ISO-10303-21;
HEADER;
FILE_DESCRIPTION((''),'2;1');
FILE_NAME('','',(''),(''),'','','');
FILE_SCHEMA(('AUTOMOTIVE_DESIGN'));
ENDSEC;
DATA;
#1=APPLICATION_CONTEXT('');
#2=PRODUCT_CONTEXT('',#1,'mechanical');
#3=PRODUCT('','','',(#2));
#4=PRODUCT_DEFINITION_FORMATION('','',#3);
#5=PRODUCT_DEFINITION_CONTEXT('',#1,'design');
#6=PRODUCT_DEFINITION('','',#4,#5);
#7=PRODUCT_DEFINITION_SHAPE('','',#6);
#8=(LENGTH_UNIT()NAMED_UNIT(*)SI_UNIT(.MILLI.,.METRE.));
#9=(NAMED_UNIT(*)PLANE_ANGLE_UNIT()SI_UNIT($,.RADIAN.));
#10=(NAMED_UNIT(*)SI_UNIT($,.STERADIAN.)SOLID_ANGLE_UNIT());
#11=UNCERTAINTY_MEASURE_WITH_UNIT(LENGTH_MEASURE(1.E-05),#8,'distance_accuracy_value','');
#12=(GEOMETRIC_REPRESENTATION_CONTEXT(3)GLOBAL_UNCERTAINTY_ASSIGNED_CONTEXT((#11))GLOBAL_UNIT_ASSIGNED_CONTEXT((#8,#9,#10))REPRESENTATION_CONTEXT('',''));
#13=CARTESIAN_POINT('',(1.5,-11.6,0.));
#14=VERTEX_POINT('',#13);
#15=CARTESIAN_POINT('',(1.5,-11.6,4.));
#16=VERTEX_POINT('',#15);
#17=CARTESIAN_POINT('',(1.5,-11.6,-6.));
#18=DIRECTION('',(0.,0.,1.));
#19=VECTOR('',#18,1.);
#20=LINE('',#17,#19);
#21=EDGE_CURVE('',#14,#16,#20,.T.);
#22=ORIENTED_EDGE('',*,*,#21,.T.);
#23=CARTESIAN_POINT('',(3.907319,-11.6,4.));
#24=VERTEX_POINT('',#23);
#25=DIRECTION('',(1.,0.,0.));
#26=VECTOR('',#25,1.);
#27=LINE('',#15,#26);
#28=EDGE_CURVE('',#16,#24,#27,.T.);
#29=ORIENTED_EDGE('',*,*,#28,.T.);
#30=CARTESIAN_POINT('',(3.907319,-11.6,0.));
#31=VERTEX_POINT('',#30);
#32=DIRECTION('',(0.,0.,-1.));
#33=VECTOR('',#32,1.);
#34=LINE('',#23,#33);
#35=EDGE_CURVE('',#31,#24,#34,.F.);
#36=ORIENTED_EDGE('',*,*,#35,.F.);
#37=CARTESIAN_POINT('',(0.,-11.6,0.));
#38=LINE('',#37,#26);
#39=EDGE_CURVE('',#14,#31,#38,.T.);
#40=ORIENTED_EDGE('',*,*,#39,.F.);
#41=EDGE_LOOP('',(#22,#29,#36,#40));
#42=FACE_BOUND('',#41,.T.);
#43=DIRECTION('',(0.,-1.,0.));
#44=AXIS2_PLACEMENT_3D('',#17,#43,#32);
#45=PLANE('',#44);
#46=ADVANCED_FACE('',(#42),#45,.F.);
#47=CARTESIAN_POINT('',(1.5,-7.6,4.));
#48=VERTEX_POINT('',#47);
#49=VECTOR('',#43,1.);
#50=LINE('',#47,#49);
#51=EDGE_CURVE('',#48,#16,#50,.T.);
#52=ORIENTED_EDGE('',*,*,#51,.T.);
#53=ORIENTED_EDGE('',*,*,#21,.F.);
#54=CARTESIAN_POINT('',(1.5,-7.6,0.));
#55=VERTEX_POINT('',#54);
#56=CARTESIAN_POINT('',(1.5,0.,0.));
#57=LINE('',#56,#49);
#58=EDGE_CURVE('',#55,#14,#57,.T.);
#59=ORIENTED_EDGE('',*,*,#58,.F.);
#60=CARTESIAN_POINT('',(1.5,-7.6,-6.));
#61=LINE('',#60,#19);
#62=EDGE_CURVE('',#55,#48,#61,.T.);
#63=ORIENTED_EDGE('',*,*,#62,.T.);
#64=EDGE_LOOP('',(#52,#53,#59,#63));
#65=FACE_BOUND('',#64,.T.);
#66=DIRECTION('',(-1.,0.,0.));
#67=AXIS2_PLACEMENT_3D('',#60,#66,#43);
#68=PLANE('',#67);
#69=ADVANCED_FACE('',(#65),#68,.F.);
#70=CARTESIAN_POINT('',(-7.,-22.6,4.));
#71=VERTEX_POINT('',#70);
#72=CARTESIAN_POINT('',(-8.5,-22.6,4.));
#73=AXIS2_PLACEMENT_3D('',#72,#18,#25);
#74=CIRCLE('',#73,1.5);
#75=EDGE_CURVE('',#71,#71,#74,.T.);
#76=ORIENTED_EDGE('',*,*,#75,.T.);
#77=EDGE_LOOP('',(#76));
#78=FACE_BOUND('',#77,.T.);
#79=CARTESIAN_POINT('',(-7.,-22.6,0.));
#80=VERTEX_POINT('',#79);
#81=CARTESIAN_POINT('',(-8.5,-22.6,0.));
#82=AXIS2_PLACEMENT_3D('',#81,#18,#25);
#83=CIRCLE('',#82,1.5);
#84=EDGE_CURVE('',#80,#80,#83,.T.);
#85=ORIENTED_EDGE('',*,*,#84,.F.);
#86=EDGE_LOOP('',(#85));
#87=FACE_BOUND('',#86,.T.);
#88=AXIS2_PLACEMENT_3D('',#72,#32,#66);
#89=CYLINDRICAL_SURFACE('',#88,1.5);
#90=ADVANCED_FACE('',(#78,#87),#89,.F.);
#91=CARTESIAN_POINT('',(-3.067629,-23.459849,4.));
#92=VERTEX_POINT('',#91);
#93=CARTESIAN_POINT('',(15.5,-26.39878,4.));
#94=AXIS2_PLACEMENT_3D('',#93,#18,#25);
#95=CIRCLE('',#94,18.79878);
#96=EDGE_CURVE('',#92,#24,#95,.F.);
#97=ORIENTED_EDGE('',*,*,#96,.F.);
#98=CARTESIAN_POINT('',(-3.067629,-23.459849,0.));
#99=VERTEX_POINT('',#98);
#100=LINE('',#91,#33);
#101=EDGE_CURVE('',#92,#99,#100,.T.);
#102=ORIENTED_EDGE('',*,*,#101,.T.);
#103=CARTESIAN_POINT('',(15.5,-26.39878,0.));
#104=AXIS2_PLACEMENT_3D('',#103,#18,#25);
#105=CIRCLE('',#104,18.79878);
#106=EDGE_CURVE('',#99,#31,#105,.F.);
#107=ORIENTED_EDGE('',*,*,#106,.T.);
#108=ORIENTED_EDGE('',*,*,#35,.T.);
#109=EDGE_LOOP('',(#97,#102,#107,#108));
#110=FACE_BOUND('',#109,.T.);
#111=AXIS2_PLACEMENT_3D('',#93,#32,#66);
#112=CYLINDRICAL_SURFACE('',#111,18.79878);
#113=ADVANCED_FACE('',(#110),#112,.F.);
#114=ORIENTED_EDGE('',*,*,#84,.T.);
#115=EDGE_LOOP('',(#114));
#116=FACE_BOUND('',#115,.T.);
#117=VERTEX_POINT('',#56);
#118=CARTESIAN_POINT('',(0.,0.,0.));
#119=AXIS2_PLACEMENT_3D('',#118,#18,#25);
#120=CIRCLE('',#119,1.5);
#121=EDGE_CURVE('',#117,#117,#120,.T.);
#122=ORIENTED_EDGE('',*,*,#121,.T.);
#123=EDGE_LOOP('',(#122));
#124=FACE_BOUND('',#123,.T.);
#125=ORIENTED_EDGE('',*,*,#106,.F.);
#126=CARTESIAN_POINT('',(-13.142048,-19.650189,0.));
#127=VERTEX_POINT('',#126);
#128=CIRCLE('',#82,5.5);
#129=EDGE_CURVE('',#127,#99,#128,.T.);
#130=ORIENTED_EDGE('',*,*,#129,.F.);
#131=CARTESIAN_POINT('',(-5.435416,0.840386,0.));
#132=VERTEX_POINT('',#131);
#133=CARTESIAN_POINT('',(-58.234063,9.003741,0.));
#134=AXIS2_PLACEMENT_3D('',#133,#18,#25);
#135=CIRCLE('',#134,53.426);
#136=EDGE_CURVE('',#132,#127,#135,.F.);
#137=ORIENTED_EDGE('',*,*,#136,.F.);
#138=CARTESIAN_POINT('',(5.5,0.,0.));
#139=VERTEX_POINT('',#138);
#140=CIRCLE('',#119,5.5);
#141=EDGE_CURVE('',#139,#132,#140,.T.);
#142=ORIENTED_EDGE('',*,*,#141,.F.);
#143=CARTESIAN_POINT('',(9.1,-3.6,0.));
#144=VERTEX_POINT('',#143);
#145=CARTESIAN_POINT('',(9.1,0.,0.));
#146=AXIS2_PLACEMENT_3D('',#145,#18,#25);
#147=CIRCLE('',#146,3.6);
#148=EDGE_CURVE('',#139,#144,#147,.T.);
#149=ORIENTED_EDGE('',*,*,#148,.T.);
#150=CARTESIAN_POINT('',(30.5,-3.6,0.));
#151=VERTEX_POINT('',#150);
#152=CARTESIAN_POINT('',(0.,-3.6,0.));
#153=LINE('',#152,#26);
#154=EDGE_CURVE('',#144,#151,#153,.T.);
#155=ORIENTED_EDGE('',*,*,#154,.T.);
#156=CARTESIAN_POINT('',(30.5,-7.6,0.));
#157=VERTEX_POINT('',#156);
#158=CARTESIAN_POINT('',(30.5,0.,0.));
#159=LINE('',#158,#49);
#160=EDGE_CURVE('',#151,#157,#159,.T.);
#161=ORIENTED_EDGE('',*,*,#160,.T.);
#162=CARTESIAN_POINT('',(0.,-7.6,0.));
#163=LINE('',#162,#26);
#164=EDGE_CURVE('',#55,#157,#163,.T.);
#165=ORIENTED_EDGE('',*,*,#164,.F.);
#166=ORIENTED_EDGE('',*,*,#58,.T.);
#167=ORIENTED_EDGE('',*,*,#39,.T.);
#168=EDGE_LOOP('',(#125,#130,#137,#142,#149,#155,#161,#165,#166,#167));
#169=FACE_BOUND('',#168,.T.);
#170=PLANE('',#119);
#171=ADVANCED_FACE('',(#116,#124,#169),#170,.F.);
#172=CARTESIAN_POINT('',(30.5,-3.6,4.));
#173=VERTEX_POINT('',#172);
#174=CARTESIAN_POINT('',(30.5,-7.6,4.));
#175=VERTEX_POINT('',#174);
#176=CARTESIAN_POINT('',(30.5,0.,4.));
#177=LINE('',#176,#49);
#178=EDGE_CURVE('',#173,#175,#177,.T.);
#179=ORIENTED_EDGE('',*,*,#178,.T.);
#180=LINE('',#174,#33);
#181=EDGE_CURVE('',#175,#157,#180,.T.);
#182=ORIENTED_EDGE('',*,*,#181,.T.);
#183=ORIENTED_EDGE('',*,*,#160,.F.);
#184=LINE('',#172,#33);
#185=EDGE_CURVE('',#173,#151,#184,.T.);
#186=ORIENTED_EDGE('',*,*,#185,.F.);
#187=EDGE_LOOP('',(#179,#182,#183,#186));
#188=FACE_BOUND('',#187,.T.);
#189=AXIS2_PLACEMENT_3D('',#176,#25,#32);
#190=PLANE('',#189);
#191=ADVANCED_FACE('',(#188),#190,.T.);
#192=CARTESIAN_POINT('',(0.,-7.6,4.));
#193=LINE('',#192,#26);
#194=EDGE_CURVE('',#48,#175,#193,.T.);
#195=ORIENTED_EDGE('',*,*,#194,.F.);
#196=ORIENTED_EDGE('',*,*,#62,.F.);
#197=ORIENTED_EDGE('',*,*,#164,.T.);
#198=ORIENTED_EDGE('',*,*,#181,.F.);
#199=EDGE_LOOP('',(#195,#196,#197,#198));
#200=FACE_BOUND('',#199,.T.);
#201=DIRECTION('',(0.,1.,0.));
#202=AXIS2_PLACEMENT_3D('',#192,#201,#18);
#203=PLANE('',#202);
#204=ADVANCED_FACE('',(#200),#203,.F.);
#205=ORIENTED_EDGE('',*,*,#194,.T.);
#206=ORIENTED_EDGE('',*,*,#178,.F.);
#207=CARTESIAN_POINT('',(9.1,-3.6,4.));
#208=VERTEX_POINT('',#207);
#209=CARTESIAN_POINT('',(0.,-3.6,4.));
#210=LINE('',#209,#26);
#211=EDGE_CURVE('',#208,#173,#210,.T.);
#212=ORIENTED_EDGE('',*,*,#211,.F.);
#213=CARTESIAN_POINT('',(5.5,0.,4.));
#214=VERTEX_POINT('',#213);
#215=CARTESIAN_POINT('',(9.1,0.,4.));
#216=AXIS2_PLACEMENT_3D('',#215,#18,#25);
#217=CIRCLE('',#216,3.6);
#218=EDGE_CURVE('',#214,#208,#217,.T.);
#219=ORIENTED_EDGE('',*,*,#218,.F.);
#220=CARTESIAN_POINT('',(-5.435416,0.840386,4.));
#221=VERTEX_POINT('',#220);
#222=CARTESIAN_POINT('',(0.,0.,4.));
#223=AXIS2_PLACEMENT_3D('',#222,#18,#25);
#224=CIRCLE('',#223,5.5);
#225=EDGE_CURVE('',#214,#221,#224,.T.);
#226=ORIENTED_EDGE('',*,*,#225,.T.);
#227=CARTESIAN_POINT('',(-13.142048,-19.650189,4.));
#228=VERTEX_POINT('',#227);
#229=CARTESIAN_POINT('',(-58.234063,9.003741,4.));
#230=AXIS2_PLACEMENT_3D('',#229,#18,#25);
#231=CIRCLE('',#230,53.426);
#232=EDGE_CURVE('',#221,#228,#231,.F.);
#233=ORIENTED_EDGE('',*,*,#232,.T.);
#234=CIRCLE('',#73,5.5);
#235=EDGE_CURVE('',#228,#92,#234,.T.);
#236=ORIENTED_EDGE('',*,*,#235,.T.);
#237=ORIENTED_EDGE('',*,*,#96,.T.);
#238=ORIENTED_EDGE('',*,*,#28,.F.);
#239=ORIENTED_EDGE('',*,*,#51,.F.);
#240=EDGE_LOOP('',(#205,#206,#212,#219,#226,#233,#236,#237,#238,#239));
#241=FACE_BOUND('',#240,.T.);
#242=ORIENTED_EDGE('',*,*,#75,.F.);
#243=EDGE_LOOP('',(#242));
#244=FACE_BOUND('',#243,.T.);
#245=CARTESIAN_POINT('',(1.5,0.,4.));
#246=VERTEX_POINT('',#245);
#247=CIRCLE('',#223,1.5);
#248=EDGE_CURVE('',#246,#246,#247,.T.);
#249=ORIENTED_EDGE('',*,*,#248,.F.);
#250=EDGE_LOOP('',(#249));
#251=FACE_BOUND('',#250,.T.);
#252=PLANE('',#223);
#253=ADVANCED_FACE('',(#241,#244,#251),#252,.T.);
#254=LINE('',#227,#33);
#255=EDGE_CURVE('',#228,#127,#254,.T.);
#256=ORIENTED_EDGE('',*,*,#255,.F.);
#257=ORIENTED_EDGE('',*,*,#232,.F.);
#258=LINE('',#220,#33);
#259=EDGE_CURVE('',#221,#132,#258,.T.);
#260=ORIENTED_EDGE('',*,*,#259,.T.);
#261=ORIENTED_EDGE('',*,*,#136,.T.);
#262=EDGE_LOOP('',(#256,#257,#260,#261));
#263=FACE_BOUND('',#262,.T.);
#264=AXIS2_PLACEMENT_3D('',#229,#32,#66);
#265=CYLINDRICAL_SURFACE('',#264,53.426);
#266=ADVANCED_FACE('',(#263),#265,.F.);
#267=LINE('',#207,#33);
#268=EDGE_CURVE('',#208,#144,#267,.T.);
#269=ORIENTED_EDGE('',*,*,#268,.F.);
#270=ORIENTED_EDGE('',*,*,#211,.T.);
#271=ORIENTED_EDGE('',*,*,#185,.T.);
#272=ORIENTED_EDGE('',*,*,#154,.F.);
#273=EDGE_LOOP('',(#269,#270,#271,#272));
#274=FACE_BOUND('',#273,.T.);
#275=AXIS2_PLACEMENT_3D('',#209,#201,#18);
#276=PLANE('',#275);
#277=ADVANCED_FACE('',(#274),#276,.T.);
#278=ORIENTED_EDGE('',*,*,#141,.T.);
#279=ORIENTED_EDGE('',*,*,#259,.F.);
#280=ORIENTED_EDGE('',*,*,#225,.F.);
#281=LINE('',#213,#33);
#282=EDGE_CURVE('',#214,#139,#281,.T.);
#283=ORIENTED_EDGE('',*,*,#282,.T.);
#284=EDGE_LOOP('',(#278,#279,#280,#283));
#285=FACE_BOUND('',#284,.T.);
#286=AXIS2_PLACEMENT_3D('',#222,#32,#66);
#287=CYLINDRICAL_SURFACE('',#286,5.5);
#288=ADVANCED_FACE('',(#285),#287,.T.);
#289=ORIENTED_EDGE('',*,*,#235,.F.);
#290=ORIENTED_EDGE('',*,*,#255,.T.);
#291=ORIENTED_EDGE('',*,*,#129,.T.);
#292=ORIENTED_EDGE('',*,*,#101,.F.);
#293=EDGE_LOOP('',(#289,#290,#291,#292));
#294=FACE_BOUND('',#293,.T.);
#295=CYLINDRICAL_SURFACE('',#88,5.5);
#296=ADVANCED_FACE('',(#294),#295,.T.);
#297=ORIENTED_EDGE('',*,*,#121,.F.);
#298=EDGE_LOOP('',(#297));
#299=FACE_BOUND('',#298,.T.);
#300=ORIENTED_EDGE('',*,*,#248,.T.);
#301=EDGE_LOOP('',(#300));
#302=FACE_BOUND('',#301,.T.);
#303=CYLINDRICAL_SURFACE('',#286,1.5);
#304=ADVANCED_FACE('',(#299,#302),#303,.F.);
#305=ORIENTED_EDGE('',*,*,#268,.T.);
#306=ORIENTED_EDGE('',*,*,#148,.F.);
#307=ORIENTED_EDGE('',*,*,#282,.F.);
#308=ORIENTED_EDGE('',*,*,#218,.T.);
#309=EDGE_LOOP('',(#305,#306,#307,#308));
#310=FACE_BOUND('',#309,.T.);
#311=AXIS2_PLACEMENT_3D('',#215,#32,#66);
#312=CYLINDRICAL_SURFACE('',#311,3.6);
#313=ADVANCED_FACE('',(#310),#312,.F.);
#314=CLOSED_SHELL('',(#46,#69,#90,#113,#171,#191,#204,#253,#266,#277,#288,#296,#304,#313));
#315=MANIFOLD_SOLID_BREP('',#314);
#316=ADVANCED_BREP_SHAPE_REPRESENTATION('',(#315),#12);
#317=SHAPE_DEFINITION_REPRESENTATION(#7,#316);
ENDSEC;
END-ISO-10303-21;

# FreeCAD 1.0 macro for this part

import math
import FreeCAD as App
import Part
import Sketcher
from FreeCAD import Vector
Q = App.Units.Quantity

doc = App.newDocument("Part")
params = doc.addObject("Spreadsheet::Sheet", "Params")
for row, (alias, value) in enumerate([
    ("sketch1_diameter", "3 mm"),
    ("sketch1_radius", "3.6 mm"),
    ("sketch1_radius2", "5.5 mm"),
    ("sketch1_width", "15 mm"),
    ("sketch1_height", "4 mm"),
    ("pad1_length", "4 mm"),
    ("sketch2_width", "29 mm"),
    ("sketch2_height", "4 mm"),
    ("pocket1_length", "10 mm"),
], start=1):
    params.set(f"A{row}", alias)
    params.set(f"B{row}", "=" + value)
    params.setAlias(f"B{row}", alias)

body = doc.addObject("PartDesign::Body", "Body")

# Sketch on XY plane
sketch1 = body.newObject("Sketcher::SketchObject", "Sketch")
sketch1.AttachmentSupport = (doc.getObject("XY_Plane"), [""])
sketch1.MapMode = "FlatFace"
sketch1.addGeometry([
    Part.LineSegment(Vector(30.5, -3.6, 0), Vector(9.1, -3.6, 0)),  # 0
    Part.ArcOfCircle(Part.Circle(Vector(9.1, 0, 0), Vector(0, 0, 1), 3.6), math.radians(-180), math.radians(-90)),  # 1
    Part.ArcOfCircle(Part.Circle(Vector(0, 0, 0), Vector(0, 0, 1), 5.5), math.radians(0), math.radians(171)),  # 2
    Part.ArcOfCircle(Part.Circle(Vector(-58.2, 9, 0), Vector(0, 0, 1), 53.4), math.radians(-32), math.radians(-9)),  # 3
    Part.ArcOfCircle(Part.Circle(Vector(-8.5, -22.6, 0), Vector(0, 0, 1), 5.5), math.radians(148), math.radians(351)),  # 4
    Part.ArcOfCircle(Part.Circle(Vector(15.5, -26.4, 0), Vector(0, 0, 1), 18.8), math.radians(90), math.radians(171)),  # 5
    Part.LineSegment(Vector(15.5, -7.6, 0), Vector(30.5, -7.6, 0)),  # 6
    Part.LineSegment(Vector(30.5, -7.6, 0), Vector(30.5, -3.6, 0)),  # 7
    Part.Circle(Vector(-8.5, -22.6, 0), Vector(0, 0, 1), 1.5),  # 8
    Part.Circle(Vector(0, 0, 0), Vector(0, 0, 1), 1.5),  # 9
], False)
sketch1.addConstraint([
    Sketcher.Constraint("Tangent", 0, 2, 1, 2),
    Sketcher.Constraint("Tangent", 1, 1, 2, 1),
    Sketcher.Constraint("Tangent", 2, 2, 3, 2),
    Sketcher.Constraint("Tangent", 3, 1, 4, 1),
    Sketcher.Constraint("Tangent", 4, 2, 5, 2),
    Sketcher.Constraint("Tangent", 5, 1, 6, 1),
    Sketcher.Constraint("Coincident", 6, 2, 7, 1),
    Sketcher.Constraint("Coincident", 7, 2, 0, 1),
    Sketcher.Constraint("Horizontal", 0),
    Sketcher.Constraint("Horizontal", 6),
    Sketcher.Constraint("Vertical", 7),
    Sketcher.Constraint("Coincident", 2, 3, -1, 1),
    Sketcher.Constraint("Coincident", 9, 3, -1, 1),
    Sketcher.Constraint("Coincident", 8, 3, 4, 3),
    Sketcher.Constraint("Equal", 2, 4),
    Sketcher.Constraint("Equal", 8, 9),
    Sketcher.Constraint("PointOnObject", 1, 3, -1),
    Sketcher.Constraint("Diameter", 8, Q("3 mm")),
    Sketcher.Constraint("Radius", 1, Q("3.6 mm")),
    Sketcher.Constraint("Radius", 2, Q("5.5 mm")),
    Sketcher.Constraint("DistanceX", 6, 1, 6, 2, Q("15 mm")),
    Sketcher.Constraint("DistanceY", 7, 1, 7, 2, Q("4 mm")),
    Sketcher.Constraint("DistanceX", 0, 2, 0, 1, Q("21.4 mm")),
    Sketcher.Constraint("Radius", 3, Q("53.426 mm")),
    Sketcher.Constraint("DistanceX", 4, 3, 5, 3, Q("24 mm")),
    Sketcher.Constraint("DistanceY", 4, 3, 0, 2, Q("19 mm")),
])
sketch1.setExpression("Constraints[17]", "Params.sketch1_diameter")
sketch1.setExpression("Constraints[18]", "Params.sketch1_radius")
sketch1.setExpression("Constraints[19]", "Params.sketch1_radius2")
sketch1.setExpression("Constraints[20]", "Params.sketch1_width")
sketch1.setExpression("Constraints[21]", "Params.sketch1_height")
pad1 = body.newObject("PartDesign::Pad", "Pad")
pad1.Profile = sketch1
pad1.setExpression("Length", "Params.pad1_length")

# Sketch on XY plane
sketch2 = body.newObject("Sketcher::SketchObject", "Sketch001")
sketch2.AttachmentSupport = (doc.getObject("XY_Plane"), [""])
sketch2.MapMode = "FlatFace"
sketch2.AttachmentOffset = App.Placement(Vector(0, 0, 4), App.Rotation())
sketch2.addGeometry([
    Part.LineSegment(Vector(1.5, -7.6, 0), Vector(1.5, -11.6, 0)),
    Part.LineSegment(Vector(1.5, -11.6, 0), Vector(30.5, -11.6, 0)),
    Part.LineSegment(Vector(30.5, -11.6, 0), Vector(30.5, -7.6, 0)),
    Part.LineSegment(Vector(30.5, -7.6, 0), Vector(1.5, -7.6, 0)),
], False)
sketch2.addConstraint([
    Sketcher.Constraint("Coincident", 0, 2, 1, 1),
    Sketcher.Constraint("Coincident", 1, 2, 2, 1),
    Sketcher.Constraint("Coincident", 2, 2, 3, 1),
    Sketcher.Constraint("Coincident", 3, 2, 0, 1),
    Sketcher.Constraint("Vertical", 0),
    Sketcher.Constraint("Horizontal", 1),
    Sketcher.Constraint("Vertical", 2),
    Sketcher.Constraint("Horizontal", 3),
    Sketcher.Constraint("DistanceX", 1, 1, 1, 2, Q("29 mm")),
    Sketcher.Constraint("DistanceY", 0, 2, 0, 1, Q("4 mm")),
    Sketcher.Constraint("DistanceX", -1, 1, 0, 2, Q("1.5 mm")),
    Sketcher.Constraint("DistanceY", 0, 2, -1, 1, Q("11.6 mm")),
])
sketch2.setExpression("Constraints[8]", "Params.sketch2_width")
sketch2.setExpression("Constraints[9]", "Params.sketch2_height")
pocket1 = body.newObject("PartDesign::Pocket", "Pocket")
pocket1.Profile = sketch2
pocket1.setExpression("Length", "Params.pocket1_length")

doc.recompute()
